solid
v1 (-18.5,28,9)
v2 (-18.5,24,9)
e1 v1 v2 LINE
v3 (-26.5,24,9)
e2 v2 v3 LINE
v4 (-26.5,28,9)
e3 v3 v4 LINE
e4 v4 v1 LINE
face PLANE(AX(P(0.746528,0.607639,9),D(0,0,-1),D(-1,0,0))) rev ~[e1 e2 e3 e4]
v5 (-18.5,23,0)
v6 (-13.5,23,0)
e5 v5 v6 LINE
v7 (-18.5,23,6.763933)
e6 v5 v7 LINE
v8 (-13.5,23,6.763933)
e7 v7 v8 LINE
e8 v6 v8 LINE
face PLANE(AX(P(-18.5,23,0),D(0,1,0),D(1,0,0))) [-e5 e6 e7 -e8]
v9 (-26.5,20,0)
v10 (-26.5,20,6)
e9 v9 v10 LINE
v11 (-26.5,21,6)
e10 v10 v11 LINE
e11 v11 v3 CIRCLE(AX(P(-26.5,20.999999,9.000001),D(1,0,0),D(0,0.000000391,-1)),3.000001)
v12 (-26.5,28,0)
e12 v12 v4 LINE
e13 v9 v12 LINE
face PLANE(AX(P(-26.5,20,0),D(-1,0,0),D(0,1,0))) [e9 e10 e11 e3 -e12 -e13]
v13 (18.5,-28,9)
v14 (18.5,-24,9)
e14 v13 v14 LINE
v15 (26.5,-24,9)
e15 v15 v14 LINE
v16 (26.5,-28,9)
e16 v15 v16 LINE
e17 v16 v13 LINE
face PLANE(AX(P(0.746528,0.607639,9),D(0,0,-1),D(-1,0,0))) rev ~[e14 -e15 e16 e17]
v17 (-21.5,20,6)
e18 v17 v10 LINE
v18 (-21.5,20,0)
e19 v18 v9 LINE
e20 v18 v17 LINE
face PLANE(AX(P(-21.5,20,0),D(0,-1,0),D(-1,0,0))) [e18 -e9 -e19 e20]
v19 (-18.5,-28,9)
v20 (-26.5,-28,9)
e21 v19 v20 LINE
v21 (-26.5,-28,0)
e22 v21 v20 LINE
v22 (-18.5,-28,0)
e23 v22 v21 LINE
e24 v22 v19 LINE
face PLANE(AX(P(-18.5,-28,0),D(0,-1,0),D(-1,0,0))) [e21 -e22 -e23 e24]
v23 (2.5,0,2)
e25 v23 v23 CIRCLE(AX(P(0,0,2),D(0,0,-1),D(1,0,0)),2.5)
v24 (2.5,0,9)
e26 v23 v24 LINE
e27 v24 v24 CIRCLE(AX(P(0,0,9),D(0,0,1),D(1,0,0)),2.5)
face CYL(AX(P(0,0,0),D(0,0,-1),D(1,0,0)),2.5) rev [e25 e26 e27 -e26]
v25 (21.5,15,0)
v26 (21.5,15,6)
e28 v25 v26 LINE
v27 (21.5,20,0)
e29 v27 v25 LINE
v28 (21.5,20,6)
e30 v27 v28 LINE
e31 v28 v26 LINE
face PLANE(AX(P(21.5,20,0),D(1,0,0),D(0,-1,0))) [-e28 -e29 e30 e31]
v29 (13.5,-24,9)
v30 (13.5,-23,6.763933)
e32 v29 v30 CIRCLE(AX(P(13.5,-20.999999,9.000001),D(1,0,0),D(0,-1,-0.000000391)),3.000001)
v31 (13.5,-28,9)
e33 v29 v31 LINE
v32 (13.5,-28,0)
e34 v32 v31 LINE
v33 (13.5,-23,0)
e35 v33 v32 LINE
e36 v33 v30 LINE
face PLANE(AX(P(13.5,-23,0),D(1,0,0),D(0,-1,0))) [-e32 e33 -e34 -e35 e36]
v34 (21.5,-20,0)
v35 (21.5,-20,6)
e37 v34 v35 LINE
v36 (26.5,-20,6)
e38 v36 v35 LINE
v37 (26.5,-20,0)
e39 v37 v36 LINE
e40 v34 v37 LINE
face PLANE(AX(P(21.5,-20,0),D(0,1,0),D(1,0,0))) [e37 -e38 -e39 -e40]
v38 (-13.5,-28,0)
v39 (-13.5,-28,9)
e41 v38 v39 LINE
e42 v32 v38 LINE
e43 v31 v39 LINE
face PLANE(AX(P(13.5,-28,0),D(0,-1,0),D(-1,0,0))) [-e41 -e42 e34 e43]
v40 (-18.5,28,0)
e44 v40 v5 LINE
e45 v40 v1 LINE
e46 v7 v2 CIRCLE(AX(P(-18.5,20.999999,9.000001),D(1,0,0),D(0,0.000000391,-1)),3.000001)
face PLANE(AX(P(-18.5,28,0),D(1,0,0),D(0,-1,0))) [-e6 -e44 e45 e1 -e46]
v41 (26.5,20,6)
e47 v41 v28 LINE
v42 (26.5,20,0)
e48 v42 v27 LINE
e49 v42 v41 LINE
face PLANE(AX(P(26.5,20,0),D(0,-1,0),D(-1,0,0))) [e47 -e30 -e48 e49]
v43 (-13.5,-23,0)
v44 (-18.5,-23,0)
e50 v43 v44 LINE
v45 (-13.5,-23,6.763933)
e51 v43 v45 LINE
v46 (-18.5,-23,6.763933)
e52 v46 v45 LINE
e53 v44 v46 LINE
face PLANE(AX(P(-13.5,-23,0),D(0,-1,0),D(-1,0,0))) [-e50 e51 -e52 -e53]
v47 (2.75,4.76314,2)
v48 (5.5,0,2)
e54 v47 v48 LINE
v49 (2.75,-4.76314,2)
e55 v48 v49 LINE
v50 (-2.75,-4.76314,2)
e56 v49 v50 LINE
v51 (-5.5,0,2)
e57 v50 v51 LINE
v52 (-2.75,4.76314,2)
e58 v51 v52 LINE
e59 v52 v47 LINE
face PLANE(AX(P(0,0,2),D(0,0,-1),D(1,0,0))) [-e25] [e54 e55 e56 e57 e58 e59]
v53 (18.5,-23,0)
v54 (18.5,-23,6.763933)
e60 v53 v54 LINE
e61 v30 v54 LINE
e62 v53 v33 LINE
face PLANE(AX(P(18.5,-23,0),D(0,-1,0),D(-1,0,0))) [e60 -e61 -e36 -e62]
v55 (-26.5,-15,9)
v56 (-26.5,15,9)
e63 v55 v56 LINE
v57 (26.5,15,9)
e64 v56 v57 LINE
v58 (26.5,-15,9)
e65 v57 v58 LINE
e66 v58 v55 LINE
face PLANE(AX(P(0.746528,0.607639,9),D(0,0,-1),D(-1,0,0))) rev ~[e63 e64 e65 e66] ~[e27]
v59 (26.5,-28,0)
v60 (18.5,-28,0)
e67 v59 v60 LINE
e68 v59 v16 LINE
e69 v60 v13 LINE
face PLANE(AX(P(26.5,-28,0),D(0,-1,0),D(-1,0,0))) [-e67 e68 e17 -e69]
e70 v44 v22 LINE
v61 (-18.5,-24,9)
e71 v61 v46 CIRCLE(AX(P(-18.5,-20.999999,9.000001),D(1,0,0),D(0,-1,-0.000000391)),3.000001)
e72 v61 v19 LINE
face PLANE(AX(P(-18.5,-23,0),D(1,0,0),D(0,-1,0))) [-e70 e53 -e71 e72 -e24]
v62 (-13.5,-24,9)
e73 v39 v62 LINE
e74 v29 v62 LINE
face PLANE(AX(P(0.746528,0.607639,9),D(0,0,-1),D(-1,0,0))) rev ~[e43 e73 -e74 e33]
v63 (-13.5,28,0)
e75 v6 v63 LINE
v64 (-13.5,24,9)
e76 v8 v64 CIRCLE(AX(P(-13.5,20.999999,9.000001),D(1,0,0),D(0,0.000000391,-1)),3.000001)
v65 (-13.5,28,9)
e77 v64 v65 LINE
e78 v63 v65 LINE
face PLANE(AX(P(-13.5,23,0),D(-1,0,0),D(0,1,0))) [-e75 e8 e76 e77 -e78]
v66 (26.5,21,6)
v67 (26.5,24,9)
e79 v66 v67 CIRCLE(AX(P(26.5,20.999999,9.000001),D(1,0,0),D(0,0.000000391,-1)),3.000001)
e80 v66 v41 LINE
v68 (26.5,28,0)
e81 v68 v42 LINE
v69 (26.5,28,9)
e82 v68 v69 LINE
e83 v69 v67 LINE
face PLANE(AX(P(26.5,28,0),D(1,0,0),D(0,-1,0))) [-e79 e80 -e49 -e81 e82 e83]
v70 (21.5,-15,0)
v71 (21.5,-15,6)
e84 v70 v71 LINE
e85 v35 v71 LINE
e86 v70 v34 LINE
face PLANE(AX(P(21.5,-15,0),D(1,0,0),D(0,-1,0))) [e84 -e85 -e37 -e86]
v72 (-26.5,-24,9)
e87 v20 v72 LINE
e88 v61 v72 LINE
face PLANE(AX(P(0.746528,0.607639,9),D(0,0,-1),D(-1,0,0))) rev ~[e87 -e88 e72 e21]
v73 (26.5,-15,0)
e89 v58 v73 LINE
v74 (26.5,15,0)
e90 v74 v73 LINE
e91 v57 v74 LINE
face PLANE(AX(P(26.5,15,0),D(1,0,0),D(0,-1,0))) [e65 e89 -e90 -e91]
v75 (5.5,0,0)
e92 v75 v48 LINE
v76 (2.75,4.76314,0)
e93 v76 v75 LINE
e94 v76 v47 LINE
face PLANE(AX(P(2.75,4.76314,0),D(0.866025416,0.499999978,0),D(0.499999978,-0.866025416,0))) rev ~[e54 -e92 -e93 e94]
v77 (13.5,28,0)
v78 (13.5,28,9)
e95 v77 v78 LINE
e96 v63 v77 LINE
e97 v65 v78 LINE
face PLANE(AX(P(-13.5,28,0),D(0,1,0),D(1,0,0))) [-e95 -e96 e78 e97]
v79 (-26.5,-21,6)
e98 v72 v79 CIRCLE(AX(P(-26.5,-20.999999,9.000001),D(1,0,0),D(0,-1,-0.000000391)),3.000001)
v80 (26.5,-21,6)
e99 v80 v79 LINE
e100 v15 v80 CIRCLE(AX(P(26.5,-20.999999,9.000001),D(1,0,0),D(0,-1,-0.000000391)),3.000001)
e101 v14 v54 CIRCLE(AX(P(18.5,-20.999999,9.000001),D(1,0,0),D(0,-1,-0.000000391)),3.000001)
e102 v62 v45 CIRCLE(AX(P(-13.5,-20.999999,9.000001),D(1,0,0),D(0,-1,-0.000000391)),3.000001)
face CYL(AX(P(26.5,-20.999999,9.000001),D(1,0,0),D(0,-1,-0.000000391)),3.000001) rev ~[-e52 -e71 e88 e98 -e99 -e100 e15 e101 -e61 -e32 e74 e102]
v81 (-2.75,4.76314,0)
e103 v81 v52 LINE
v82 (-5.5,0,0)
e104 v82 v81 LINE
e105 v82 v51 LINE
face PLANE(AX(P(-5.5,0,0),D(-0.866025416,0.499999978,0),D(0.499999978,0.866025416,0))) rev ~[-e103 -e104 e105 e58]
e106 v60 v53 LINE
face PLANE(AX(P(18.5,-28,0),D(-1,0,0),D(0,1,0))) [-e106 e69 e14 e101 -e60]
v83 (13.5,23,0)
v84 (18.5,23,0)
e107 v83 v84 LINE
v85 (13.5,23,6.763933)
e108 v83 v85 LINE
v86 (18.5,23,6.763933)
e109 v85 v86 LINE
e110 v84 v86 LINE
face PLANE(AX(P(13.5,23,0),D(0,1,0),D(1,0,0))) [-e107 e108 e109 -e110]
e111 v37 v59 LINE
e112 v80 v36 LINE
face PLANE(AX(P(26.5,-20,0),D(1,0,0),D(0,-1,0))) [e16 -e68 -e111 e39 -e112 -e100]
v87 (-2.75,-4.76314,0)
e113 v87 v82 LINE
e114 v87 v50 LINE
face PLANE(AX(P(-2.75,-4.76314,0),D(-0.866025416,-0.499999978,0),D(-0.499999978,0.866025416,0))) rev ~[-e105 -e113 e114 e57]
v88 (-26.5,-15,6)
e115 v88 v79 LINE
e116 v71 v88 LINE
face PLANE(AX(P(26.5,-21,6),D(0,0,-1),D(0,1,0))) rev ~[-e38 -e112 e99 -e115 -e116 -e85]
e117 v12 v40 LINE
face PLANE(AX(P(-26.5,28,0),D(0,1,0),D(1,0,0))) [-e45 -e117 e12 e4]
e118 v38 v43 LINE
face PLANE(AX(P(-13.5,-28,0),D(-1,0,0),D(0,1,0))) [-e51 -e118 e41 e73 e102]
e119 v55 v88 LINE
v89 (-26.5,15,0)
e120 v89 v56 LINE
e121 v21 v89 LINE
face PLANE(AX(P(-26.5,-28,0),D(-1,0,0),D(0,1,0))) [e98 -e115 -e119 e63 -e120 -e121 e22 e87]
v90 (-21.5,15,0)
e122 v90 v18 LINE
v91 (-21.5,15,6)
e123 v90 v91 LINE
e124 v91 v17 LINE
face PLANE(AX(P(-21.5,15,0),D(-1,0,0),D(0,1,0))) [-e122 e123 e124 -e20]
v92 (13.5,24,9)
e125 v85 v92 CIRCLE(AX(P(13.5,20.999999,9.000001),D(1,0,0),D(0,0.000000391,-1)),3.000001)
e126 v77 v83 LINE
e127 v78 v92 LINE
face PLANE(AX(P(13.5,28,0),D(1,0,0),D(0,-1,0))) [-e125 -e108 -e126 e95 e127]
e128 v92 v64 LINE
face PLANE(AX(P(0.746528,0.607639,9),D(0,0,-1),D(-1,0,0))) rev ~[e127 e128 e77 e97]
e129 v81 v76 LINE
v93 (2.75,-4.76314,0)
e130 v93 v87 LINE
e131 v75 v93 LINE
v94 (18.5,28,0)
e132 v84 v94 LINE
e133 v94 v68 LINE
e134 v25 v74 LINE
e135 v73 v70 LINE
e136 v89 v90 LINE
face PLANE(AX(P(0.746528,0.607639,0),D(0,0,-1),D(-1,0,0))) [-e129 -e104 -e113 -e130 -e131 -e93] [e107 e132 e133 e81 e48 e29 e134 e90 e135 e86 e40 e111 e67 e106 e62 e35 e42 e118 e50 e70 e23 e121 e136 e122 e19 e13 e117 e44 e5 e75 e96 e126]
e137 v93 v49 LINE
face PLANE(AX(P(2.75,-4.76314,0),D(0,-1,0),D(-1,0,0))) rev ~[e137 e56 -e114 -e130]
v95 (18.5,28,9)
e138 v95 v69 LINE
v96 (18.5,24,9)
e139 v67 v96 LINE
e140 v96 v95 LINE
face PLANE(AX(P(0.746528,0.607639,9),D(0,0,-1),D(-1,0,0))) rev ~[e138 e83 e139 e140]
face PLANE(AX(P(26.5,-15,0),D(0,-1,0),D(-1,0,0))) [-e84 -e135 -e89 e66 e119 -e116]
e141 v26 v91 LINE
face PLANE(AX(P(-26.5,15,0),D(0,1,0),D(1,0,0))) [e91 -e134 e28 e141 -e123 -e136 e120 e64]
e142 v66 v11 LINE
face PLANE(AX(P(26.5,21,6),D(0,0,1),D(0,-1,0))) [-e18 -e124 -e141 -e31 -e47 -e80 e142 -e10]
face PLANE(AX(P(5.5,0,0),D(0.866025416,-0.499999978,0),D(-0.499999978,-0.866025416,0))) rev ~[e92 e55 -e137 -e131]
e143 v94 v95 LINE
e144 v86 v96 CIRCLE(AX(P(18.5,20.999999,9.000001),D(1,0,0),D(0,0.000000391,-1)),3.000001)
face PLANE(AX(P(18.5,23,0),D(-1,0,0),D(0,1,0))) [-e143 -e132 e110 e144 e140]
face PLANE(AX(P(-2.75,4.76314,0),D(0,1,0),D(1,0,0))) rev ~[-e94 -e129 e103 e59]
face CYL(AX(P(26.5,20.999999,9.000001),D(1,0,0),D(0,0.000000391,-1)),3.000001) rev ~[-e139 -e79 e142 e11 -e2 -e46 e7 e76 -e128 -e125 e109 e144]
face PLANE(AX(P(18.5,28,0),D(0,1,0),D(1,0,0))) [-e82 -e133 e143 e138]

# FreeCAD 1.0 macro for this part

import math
import FreeCAD as App
import Part
import Sketcher

V = App.Vector
Q = App.Units.Quantity


def add_polygon(sketch, points):
    """Adds a closed chain of lines whose ends are joined by coincident constraints."""
    first, n = sketch.GeometryCount, len(points)
    for a, b in zip(points, points[1:] + points[:1]):
        sketch.addGeometry(Part.LineSegment(App.Vector(*a, 0), App.Vector(*b, 0)), False)
    for i in range(n):
        sketch.addConstraint(Sketcher.Constraint("Coincident", first + i, 2, first + (i + 1) % n, 1))

doc = App.newDocument("Part")
body = doc.addObject("PartDesign::Body", "Body")

sketch1 = body.newObject("Sketcher::SketchObject", "Sketch")
sketch1.AttachmentSupport = (doc.getObject("XY_Plane"), [""])
sketch1.MapMode = "FlatFace"
add_polygon(sketch1, [(-18.5, 28), (-26.5, 28), (-26.5, 20), (-21.5, 20), (-21.5, 15), (-26.5, 15), (-26.5, -28), (-18.5, -28), (-18.5, -23), (-13.5, -23), (-13.5, -28), (13.5, -28), (13.5, -23), (18.5, -23), (18.5, -28), (26.5, -28), (26.5, -20), (21.5, -20), (21.5, -15), (26.5, -15), (26.5, 15), (21.5, 15), (21.5, 20), (26.5, 20), (26.5, 28), (18.5, 28), (18.5, 23), (13.5, 23), (13.5, 28), (-13.5, 28), (-13.5, 23), (-18.5, 23)])
sketch1.addGeometry(Part.Circle(V(0, 0, 0), V(0, 0, 1), 2.5), False)
sketch1.addConstraint([
    Sketcher.Constraint("Horizontal", 0),
    Sketcher.Constraint("Vertical", 1),
    Sketcher.Constraint("Horizontal", 2),
    Sketcher.Constraint("Vertical", 3),
    Sketcher.Constraint("Horizontal", 4),
    Sketcher.Constraint("Vertical", 5),
    Sketcher.Constraint("Horizontal", 6),
    Sketcher.Constraint("Vertical", 7),
    Sketcher.Constraint("Horizontal", 8),
    Sketcher.Constraint("Vertical", 9),
    Sketcher.Constraint("Horizontal", 10),
    Sketcher.Constraint("Vertical", 11),
    Sketcher.Constraint("Horizontal", 12),
    Sketcher.Constraint("Vertical", 13),
    Sketcher.Constraint("Horizontal", 14),
    Sketcher.Constraint("Vertical", 15),
    Sketcher.Constraint("Horizontal", 16),
    Sketcher.Constraint("Vertical", 17),
    Sketcher.Constraint("Horizontal", 18),
    Sketcher.Constraint("Vertical", 19),
    Sketcher.Constraint("Horizontal", 20),
    Sketcher.Constraint("Vertical", 21),
    Sketcher.Constraint("Horizontal", 22),
    Sketcher.Constraint("Vertical", 23),
    Sketcher.Constraint("Horizontal", 24),
    Sketcher.Constraint("Vertical", 25),
    Sketcher.Constraint("Horizontal", 26),
    Sketcher.Constraint("Vertical", 27),
    Sketcher.Constraint("Horizontal", 28),
    Sketcher.Constraint("Vertical", 29),
    Sketcher.Constraint("Horizontal", 30),
    Sketcher.Constraint("Vertical", 31),
    Sketcher.Constraint("Coincident", 32, 3, -1, 1),
    Sketcher.Constraint("Symmetric", 0, 2, 14, 2, -1, 1),
    Sketcher.Constraint("Symmetric", 2, 2, 16, 2, -1, 1),
    Sketcher.Constraint("Symmetric", 4, 2, 18, 2, -1, 1),
    Sketcher.Constraint("Symmetric", 5, 2, 23, 2, -1, 1),
    Sketcher.Constraint("Symmetric", 7, 2, 25, 2, -1, 1),
    Sketcher.Constraint("Symmetric", 9, 2, 27, 2, -1, 1),
    Sketcher.Constraint("Symmetric", 11, 2, 29, 2, -1, 1),
    Sketcher.Constraint("Symmetric", 8, 2, 11, 2, -2),
    Sketcher.Constraint("Symmetric", 6, 2, 13, 2, -2),
    Sketcher.Constraint("Symmetric", 3, 2, 20, 2, -2),
    Sketcher.Constraint("Symmetric", 1, 2, 22, 2, -2),
    Sketcher.Constraint("Horizontal", 6, 2, 9, 2),
    Sketcher.Constraint("Vertical", 7, 2, 30, 2),
    Sketcher.Constraint("Equal", 4, 8),
    Sketcher.Constraint("Equal", 24, 1),
    Sketcher.Constraint("Equal", 30, 3),
    Sketcher.Constraint("Equal", 3, 7),
    Sketcher.Constraint("Diameter", 32, 5.0),
    Sketcher.Constraint("DistanceX", 0, 2, 0, 1, 8.0),
    Sketcher.Constraint("DistanceX", 2, 1, 2, 2, 5.0),
    Sketcher.Constraint("DistanceX", 10, 1, 10, 2, 27.0),
    Sketcher.Constraint("DistanceY", 5, 2, 5, 1, 43.0),
])
pad1 = body.newObject("PartDesign::Pad", "Pad")
pad1.Profile = sketch1
pad1.Length = 9

sketch2 = body.newObject("Sketcher::SketchObject", "Sketch001")
sketch2.AttachmentSupport = (doc.getObject("YZ_Plane"), [""])
sketch2.MapMode = "FlatFace"
sketch2.AttachmentOffset = App.Placement(V(0, 0, 26.5), App.Rotation())
sketch2.addGeometry([
    Part.ArcOfCircle(Part.Circle(V(-21, 9, 0), V(0, 0, 1), 3), math.radians(-180), math.radians(-90)),
    Part.LineSegment(V(-21, 6, 0), V(-15, 6, 0)),
    Part.LineSegment(V(-15, 6, 0), V(-15, 9, 0)),
    Part.LineSegment(V(-15, 9, 0), V(-24, 9, 0)),
    Part.ArcOfCircle(Part.Circle(V(21, 9, 0), V(0, 0, 1), 3), math.radians(-90), math.radians(0)),
    Part.LineSegment(V(24, 9, 0), V(15, 9, 0)),
    Part.LineSegment(V(15, 9, 0), V(15, 6, 0)),
    Part.LineSegment(V(15, 6, 0), V(21, 6, 0)),
], False)
sketch2.addConstraint([
    Sketcher.Constraint("Tangent", 0, 2, 1, 1),
    Sketcher.Constraint("Coincident", 1, 2, 2, 1),
    Sketcher.Constraint("Coincident", 2, 2, 3, 1),
    Sketcher.Constraint("Coincident", 3, 2, 0, 1),
    Sketcher.Constraint("Coincident", 4, 2, 5, 1),
    Sketcher.Constraint("Coincident", 5, 2, 6, 1),
    Sketcher.Constraint("Coincident", 6, 2, 7, 1),
    Sketcher.Constraint("Tangent", 7, 2, 4, 1),
    Sketcher.Constraint("Horizontal", 1),
    Sketcher.Constraint("Vertical", 2),
    Sketcher.Constraint("Horizontal", 3),
    Sketcher.Constraint("Horizontal", 5),
    Sketcher.Constraint("Vertical", 6),
    Sketcher.Constraint("Horizontal", 7),
    Sketcher.Constraint("Equal", 0, 4),
    Sketcher.Constraint("Symmetric", 0, 3, 4, 3, -2),
    Sketcher.Constraint("Symmetric", 2, 2, 5, 2, -2),
    Sketcher.Constraint("Horizontal", 4, 3, 2, 2),
    Sketcher.Constraint("Radius", 0, 3.000001),
    Sketcher.Constraint("DistanceX", 1, 1, 1, 2, 6.0),
    Sketcher.Constraint("DistanceX", 0, 3, -1, 1, 20.999999),
    Sketcher.Constraint("DistanceY", -1, 1, 0, 3, 9.000001),
])
pocket1 = body.newObject("PartDesign::Pocket", "Pocket")
pocket1.Profile = sketch2
pocket1.Type = "ThroughAll"

sketch3 = body.newObject("Sketcher::SketchObject", "Sketch002")
sketch3.AttachmentSupport = (doc.getObject("XY_Plane"), [""])
sketch3.MapMode = "FlatFace"
add_polygon(sketch3, [(3, 5), (6, 0), (3, -5), (-3, -5), (-6, 0), (-3, 5)])
sketch3.addConstraint([
    Sketcher.Constraint("Horizontal", 2),
    Sketcher.Constraint("Horizontal", 5),
    Sketcher.Constraint("Symmetric", 0, 2, 3, 2, -1, 1),
    Sketcher.Constraint("Symmetric", 1, 2, 4, 2, -1, 1),
    Sketcher.Constraint("PointOnObject", 0, 2, -1),
    Sketcher.Constraint("Parallel", 0, 3),
    Sketcher.Constraint("Vertical", 2, 2, 4, 2),
    Sketcher.Constraint("Angle", 0, Q("-60.000001 deg")),
    Sketcher.Constraint("DistanceX", 2, 2, 2, 1, 5.5),
    Sketcher.Constraint("DistanceX", 3, 2, 0, 2, 11.0),
])
pocket2 = body.newObject("PartDesign::Pocket", "Pocket001")
pocket2.Profile = sketch3
pocket2.Length = 2
pocket2.Reversed = True

doc.recompute()
